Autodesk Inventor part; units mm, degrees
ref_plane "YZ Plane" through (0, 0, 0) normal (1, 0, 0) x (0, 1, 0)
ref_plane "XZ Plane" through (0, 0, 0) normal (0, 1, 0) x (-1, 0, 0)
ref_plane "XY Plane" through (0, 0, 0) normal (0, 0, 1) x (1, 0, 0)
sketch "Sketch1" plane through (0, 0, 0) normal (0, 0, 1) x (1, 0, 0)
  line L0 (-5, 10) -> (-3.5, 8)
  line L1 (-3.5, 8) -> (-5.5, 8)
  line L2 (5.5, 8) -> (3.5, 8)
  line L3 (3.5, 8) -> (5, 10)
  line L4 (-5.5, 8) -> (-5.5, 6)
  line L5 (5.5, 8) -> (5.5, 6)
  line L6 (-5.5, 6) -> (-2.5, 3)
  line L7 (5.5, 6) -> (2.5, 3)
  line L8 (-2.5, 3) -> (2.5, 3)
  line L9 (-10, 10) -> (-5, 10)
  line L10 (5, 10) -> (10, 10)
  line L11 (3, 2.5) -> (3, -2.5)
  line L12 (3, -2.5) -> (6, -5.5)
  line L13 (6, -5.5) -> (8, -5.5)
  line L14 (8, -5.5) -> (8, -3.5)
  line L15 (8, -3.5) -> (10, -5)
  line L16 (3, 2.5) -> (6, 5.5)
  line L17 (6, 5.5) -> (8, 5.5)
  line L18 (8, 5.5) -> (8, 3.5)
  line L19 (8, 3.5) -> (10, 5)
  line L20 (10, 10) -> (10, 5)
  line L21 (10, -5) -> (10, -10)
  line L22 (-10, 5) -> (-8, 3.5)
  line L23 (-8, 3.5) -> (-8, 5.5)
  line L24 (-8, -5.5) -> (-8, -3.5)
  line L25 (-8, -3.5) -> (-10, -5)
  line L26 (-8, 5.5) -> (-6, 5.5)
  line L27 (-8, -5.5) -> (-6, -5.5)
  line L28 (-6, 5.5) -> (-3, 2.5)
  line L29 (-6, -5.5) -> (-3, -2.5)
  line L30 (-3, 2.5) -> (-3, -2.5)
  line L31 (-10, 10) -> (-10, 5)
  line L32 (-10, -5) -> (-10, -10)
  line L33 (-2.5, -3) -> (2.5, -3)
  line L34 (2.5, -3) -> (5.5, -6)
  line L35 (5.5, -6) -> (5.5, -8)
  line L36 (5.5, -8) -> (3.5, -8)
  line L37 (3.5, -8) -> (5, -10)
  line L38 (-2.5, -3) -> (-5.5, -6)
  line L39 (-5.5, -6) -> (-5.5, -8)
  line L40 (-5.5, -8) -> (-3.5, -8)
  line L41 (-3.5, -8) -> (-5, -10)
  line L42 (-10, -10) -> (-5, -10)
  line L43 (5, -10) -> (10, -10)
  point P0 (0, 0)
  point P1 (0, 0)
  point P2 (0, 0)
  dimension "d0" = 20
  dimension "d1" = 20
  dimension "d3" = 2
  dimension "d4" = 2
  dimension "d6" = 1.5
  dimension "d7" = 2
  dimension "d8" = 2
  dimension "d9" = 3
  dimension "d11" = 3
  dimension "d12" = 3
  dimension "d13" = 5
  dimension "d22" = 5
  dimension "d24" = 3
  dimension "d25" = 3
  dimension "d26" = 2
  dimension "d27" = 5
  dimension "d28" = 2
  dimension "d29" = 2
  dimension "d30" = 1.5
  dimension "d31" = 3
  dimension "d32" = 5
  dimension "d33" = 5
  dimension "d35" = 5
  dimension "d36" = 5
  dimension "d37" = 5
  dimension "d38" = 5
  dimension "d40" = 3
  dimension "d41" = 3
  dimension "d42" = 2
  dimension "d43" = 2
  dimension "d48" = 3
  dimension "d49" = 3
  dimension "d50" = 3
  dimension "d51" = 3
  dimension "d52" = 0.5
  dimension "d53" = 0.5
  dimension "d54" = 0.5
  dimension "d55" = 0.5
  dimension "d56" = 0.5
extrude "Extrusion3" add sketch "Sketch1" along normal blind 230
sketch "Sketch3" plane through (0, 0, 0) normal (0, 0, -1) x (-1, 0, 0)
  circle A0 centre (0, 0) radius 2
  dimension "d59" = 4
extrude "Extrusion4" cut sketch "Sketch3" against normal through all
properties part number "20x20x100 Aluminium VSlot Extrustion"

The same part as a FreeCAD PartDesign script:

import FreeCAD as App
import Part
import Sketcher
from FreeCAD import Vector
Q = App.Units.Quantity

doc = App.newDocument("Part")
body = doc.addObject("PartDesign::Body", "Body")

# Sketch on XY plane
sketch1 = body.newObject("Sketcher::SketchObject", "Sketch")
sketch1.AttachmentSupport = (doc.getObject("XY_Plane"), [""])
sketch1.MapMode = "FlatFace"
sketch1.addGeometry([
    Part.LineSegment(Vector(-3.5, 8, 0), Vector(-5, 10, 0)),  # 0
    Part.LineSegment(Vector(-5, 10, 0), Vector(-10, 10, 0)),  # 1
    Part.LineSegment(Vector(-10, 10, 0), Vector(-10, 5, 0)),  # 2
    Part.LineSegment(Vector(-10, 5, 0), Vector(-8, 3.5, 0)),  # 3
    Part.LineSegment(Vector(-8, 3.5, 0), Vector(-8, 5.5, 0)),  # 4
    Part.LineSegment(Vector(-8, 5.5, 0), Vector(-6, 5.5, 0)),  # 5
    Part.LineSegment(Vector(-6, 5.5, 0), Vector(-3, 2.5, 0)),  # 6
    Part.LineSegment(Vector(-3, 2.5, 0), Vector(-3, -2.5, 0)),  # 7
    Part.LineSegment(Vector(-3, -2.5, 0), Vector(-6, -5.5, 0)),  # 8
    Part.LineSegment(Vector(-6, -5.5, 0), Vector(-8, -5.5, 0)),  # 9
    Part.LineSegment(Vector(-8, -5.5, 0), Vector(-8, -3.5, 0)),  # 10
    Part.LineSegment(Vector(-8, -3.5, 0), Vector(-10, -5, 0)),  # 11
    Part.LineSegment(Vector(-10, -5, 0), Vector(-10, -10, 0)),  # 12
    Part.LineSegment(Vector(-10, -10, 0), Vector(-5, -10, 0)),  # 13
    Part.LineSegment(Vector(-5, -10, 0), Vector(-3.5, -8, 0)),  # 14
    Part.LineSegment(Vector(-3.5, -8, 0), Vector(-5.5, -8, 0)),  # 15
    Part.LineSegment(Vector(-5.5, -8, 0), Vector(-5.5, -6, 0)),  # 16
    Part.LineSegment(Vector(-5.5, -6, 0), Vector(-2.5, -3, 0)),  # 17
    Part.LineSegment(Vector(-2.5, -3, 0), Vector(2.5, -3, 0)),  # 18
    Part.LineSegment(Vector(2.5, -3, 0), Vector(5.5, -6, 0)),  # 19
    Part.LineSegment(Vector(5.5, -6, 0), Vector(5.5, -8, 0)),  # 20
    Part.LineSegment(Vector(5.5, -8, 0), Vector(3.5, -8, 0)),  # 21
    Part.LineSegment(Vector(3.5, -8, 0), Vector(5, -10, 0)),  # 22
    Part.LineSegment(Vector(5, -10, 0), Vector(10, -10, 0)),  # 23
    Part.LineSegment(Vector(10, -10, 0), Vector(10, -5, 0)),  # 24
    Part.LineSegment(Vector(10, -5, 0), Vector(8, -3.5, 0)),  # 25
    Part.LineSegment(Vector(8, -3.5, 0), Vector(8, -5.5, 0)),  # 26
    Part.LineSegment(Vector(8, -5.5, 0), Vector(6, -5.5, 0)),  # 27
    Part.LineSegment(Vector(6, -5.5, 0), Vector(3, -2.5, 0)),  # 28
    Part.LineSegment(Vector(3, -2.5, 0), Vector(3, 2.5, 0)),  # 29
    Part.LineSegment(Vector(3, 2.5, 0), Vector(6, 5.5, 0)),  # 30
    Part.LineSegment(Vector(6, 5.5, 0), Vector(8, 5.5, 0)),  # 31
    Part.LineSegment(Vector(8, 5.5, 0), Vector(8, 3.5, 0)),  # 32
    Part.LineSegment(Vector(8, 3.5, 0), Vector(10, 5, 0)),  # 33
    Part.LineSegment(Vector(10, 5, 0), Vector(10, 10, 0)),  # 34
    Part.LineSegment(Vector(10, 10, 0), Vector(5, 10, 0)),  # 35
    Part.LineSegment(Vector(5, 10, 0), Vector(3.5, 8, 0)),  # 36
    Part.LineSegment(Vector(3.5, 8, 0), Vector(5.5, 8, 0)),  # 37
    Part.LineSegment(Vector(5.5, 8, 0), Vector(5.5, 6, 0)),  # 38
    Part.LineSegment(Vector(5.5, 6, 0), Vector(2.5, 3, 0)),  # 39
    Part.LineSegment(Vector(2.5, 3, 0), Vector(-2.5, 3, 0)),  # 40
    Part.LineSegment(Vector(-2.5, 3, 0), Vector(-5.5, 6, 0)),  # 41
    Part.LineSegment(Vector(-5.5, 6, 0), Vector(-5.5, 8, 0)),  # 42
    Part.LineSegment(Vector(-5.5, 8, 0), Vector(-3.5, 8, 0)),  # 43
], False)
sketch1.addConstraint([
    Sketcher.Constraint("Coincident", 0, 2, 1, 1),
    Sketcher.Constraint("Coincident", 1, 2, 2, 1),
    Sketcher.Constraint("Coincident", 2, 2, 3, 1),
    Sketcher.Constraint("Coincident", 3, 2, 4, 1),
    Sketcher.Constraint("Coincident", 4, 2, 5, 1),
    Sketcher.Constraint("Coincident", 5, 2, 6, 1),
    Sketcher.Constraint("Coincident", 6, 2, 7, 1),
    Sketcher.Constraint("Coincident", 7, 2, 8, 1),
    Sketcher.Constraint("Coincident", 8, 2, 9, 1),
    Sketcher.Constraint("Coincident", 9, 2, 10, 1),
    Sketcher.Constraint("Coincident", 10, 2, 11, 1),
    Sketcher.Constraint("Coincident", 11, 2, 12, 1),
    Sketcher.Constraint("Coincident", 12, 2, 13, 1),
    Sketcher.Constraint("Coincident", 13, 2, 14, 1),
    Sketcher.Constraint("Coincident", 14, 2, 15, 1),
    Sketcher.Constraint("Coincident", 15, 2, 16, 1),
    Sketcher.Constraint("Coincident", 16, 2, 17, 1),
    Sketcher.Constraint("Coincident", 17, 2, 18, 1),
    Sketcher.Constraint("Coincident", 18, 2, 19, 1),
    Sketcher.Constraint("Coincident", 19, 2, 20, 1),
    Sketcher.Constraint("Coincident", 20, 2, 21, 1),
    Sketcher.Constraint("Coincident", 21, 2, 22, 1),
    Sketcher.Constraint("Coincident", 22, 2, 23, 1),
    Sketcher.Constraint("Coincident", 23, 2, 24, 1),
    Sketcher.Constraint("Coincident", 24, 2, 25, 1),
    Sketcher.Constraint("Coincident", 25, 2, 26, 1),
    Sketcher.Constraint("Coincident", 26, 2, 27, 1),
    Sketcher.Constraint("Coincident", 27, 2, 28, 1),
    Sketcher.Constraint("Coincident", 28, 2, 29, 1),
    Sketcher.Constraint("Coincident", 29, 2, 30, 1),
    Sketcher.Constraint("Coincident", 30, 2, 31, 1),
    Sketcher.Constraint("Coincident", 31, 2, 32, 1),
    Sketcher.Constraint("Coincident", 32, 2, 33, 1),
    Sketcher.Constraint("Coincident", 33, 2, 34, 1),
    Sketcher.Constraint("Coincident", 34, 2, 35, 1),
    Sketcher.Constraint("Coincident", 35, 2, 36, 1),
    Sketcher.Constraint("Coincident", 36, 2, 37, 1),
    Sketcher.Constraint("Coincident", 37, 2, 38, 1),
    Sketcher.Constraint("Coincident", 38, 2, 39, 1),
    Sketcher.Constraint("Coincident", 39, 2, 40, 1),
    Sketcher.Constraint("Coincident", 40, 2, 41, 1),
    Sketcher.Constraint("Coincident", 41, 2, 42, 1),
    Sketcher.Constraint("Coincident", 42, 2, 43, 1),
    Sketcher.Constraint("Coincident", 43, 2, 0, 1),
    Sketcher.Constraint("Horizontal", 1),
    Sketcher.Constraint("Vertical", 2),
    Sketcher.Constraint("Vertical", 4),
    Sketcher.Constraint("Horizontal", 5),
    Sketcher.Constraint("Vertical", 7),
    Sketcher.Constraint("Horizontal", 9),
    Sketcher.Constraint("Vertical", 10),
    Sketcher.Constraint("Vertical", 12),
    Sketcher.Constraint("Horizontal", 13),
    Sketcher.Constraint("Horizontal", 15),
    Sketcher.Constraint("Vertical", 16),
    Sketcher.Constraint("Horizontal", 18),
    Sketcher.Constraint("Vertical", 20),
    Sketcher.Constraint("Horizontal", 21),
    Sketcher.Constraint("Horizontal", 23),
    Sketcher.Constraint("Vertical", 24),
    Sketcher.Constraint("Vertical", 26),
    Sketcher.Constraint("Horizontal", 27),
    Sketcher.Constraint("Vertical", 29),
    Sketcher.Constraint("Horizontal", 31),
    Sketcher.Constraint("Vertical", 32),
    Sketcher.Constraint("Vertical", 34),
    Sketcher.Constraint("Horizontal", 35),
    Sketcher.Constraint("Horizontal", 37),
    Sketcher.Constraint("Vertical", 38),
    Sketcher.Constraint("Horizontal", 40),
    Sketcher.Constraint("Vertical", 42),
    Sketcher.Constraint("Horizontal", 43),
    Sketcher.Constraint("Symmetric", 0, 2, 22, 2, -1, 1),
    Sketcher.Constraint("Symmetric", 2, 2, 24, 2, -1, 1),
    Sketcher.Constraint("Symmetric", 3, 2, 25, 2, -1, 1),
    Sketcher.Constraint("Symmetric", 5, 2, 27, 2, -1, 1),
    Sketcher.Constraint("Symmetric", 6, 2, 28, 2, -1, 1),
    Sketcher.Constraint("Symmetric", 8, 2, 30, 2, -1, 1),
    Sketcher.Constraint("Symmetric", 10, 2, 32, 2, -1, 1),
    Sketcher.Constraint("Symmetric", 11, 2, 33, 2, -1, 1),
    Sketcher.Constraint("Symmetric", 13, 2, 35, 2, -1, 1),
    Sketcher.Constraint("Symmetric", 14, 2, 36, 2, -1, 1),
    Sketcher.Constraint("Symmetric", 16, 2, 38, 2, -1, 1),
    Sketcher.Constraint("Symmetric", 17, 2, 39, 2, -1, 1),
    Sketcher.Constraint("Symmetric", 19, 2, 41, 2, -1, 1),
    Sketcher.Constraint("Symmetric", 21, 2, 43, 2, -1, 1),
    Sketcher.Constraint("Symmetric", 16, 2, 19, 2, -2),
    Sketcher.Constraint("Symmetric", 14, 2, 21, 2, -2),
    Sketcher.Constraint("Symmetric", 13, 2, 22, 2, -2),
    Sketcher.Constraint("Symmetric", 11, 2, 24, 2, -2),
    Sketcher.Constraint("Symmetric", 10, 2, 25, 2, -2),
    Sketcher.Constraint("Symmetric", 8, 2, 27, 2, -2),
    Sketcher.Constraint("Perpendicular", 6, 8),
    Sketcher.Constraint("Perpendicular", 0, 11),
    Sketcher.Constraint("Parallel", 8, 17),
    Sketcher.Constraint("Perpendicular", 17, 19),
    Sketcher.Constraint("Perpendicular", 28, 30),
    Sketcher.Constraint("Perpendicular", 39, 41),
    Sketcher.Constraint("Horizontal", 7, 2, 28, 2),
    Sketcher.Constraint("Equal", 9, 15),
    Sketcher.Constraint("Equal", 13, 18),
    Sketcher.Constraint("Equal", 40, 2),
    Sketcher.Constraint("Equal", 43, 4),
    Sketcher.Constraint("Equal", 2, 7),
    Sketcher.Constraint("Equal", 10, 16),
    Sketcher.Constraint("Equal", 0, 3),
    Sketcher.Constraint("Equal", 8, 17),
    Sketcher.Constraint("DistanceX", 1, 2, 1, 1, Q("5 mm")),
    Sketcher.Constraint("DistanceX", 5, 1, 5, 2, Q("2 mm")),
    Sketcher.Constraint("DistanceX", 0, 2, -1, 1, Q("5 mm")),
    Sketcher.Constraint("DistanceX", 6, 2, -1, 1, Q("3 mm")),
    Sketcher.Constraint("DistanceX", 2, 2, 3, 2, Q("2 mm")),
])
pad1 = body.newObject("PartDesign::Pad", "Pad")
pad1.Profile = sketch1
pad1.Length = 230

# Sketch on XY plane
sketch2 = body.newObject("Sketcher::SketchObject", "Sketch001")
sketch2.AttachmentSupport = (doc.getObject("XY_Plane"), [""])
sketch2.MapMode = "FlatFace"
sketch2.addGeometry(Part.Circle(Vector(0, 0, 0), Vector(0, 0, 1), 2), False)
sketch2.addConstraint([
    Sketcher.Constraint("Coincident", 0, 3, -1, 1),
    Sketcher.Constraint("Diameter", 0, Q("4 mm")),
])
pocket1 = body.newObject("PartDesign::Pocket", "Pocket")
pocket1.Profile = sketch2
pocket1.Type = "ThroughAll"
pocket1.Reversed = True

doc.recompute()
